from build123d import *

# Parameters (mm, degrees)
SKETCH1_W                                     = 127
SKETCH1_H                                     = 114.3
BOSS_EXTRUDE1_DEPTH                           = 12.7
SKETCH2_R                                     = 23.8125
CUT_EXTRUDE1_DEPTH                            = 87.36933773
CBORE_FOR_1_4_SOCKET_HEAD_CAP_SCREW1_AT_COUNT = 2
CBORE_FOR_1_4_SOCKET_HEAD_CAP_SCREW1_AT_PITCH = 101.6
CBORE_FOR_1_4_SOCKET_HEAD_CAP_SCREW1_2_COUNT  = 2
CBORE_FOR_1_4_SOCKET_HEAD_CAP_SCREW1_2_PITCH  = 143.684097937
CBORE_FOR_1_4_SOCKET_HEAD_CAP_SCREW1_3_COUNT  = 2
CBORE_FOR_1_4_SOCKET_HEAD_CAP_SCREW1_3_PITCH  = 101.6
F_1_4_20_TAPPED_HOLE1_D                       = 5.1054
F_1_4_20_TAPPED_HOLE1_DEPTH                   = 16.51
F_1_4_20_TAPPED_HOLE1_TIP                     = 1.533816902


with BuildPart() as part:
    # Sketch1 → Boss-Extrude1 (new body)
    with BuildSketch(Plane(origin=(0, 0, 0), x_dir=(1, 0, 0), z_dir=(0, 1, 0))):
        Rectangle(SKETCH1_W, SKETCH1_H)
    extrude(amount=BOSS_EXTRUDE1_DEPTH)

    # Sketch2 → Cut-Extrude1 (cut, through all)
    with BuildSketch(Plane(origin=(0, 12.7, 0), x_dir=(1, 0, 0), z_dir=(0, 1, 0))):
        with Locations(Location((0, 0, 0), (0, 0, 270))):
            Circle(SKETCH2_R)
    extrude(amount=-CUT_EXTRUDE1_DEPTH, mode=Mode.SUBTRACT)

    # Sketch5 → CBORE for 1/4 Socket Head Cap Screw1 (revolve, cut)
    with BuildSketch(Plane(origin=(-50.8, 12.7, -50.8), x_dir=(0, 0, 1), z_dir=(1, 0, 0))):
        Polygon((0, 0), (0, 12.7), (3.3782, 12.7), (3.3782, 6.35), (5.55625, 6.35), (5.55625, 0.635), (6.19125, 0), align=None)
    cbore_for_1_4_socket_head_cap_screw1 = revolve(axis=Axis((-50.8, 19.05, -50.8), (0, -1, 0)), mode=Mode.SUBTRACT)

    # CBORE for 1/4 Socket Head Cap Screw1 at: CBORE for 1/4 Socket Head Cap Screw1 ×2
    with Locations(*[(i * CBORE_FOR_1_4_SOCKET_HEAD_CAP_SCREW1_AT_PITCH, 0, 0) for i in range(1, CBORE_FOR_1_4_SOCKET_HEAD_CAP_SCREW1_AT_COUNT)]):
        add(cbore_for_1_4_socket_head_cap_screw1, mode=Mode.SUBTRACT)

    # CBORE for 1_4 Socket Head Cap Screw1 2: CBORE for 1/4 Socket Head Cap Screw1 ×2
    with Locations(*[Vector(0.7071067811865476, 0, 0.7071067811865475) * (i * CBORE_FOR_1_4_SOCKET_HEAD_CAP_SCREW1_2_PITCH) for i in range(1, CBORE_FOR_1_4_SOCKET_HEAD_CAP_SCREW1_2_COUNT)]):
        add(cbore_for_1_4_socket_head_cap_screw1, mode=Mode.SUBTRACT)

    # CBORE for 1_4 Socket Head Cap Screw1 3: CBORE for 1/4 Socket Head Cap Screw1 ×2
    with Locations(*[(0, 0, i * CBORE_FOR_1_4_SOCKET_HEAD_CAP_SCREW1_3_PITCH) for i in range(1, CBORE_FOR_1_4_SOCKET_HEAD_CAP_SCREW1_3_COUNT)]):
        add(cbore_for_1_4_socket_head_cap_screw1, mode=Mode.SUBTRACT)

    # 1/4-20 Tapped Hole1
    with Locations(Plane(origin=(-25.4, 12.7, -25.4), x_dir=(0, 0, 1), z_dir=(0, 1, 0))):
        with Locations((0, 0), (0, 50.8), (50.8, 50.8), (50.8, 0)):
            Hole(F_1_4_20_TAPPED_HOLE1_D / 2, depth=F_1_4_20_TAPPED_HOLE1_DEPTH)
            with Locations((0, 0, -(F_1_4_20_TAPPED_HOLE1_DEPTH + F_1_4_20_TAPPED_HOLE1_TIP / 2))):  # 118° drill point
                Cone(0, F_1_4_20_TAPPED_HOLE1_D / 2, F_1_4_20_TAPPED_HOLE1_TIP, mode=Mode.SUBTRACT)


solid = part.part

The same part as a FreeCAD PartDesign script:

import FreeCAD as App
import Part
import Sketcher
from FreeCAD import Vector
Q = App.Units.Quantity

doc = App.newDocument("Part")
body = doc.addObject("PartDesign::Body", "Body")

sketch1 = body.newObject("Sketcher::SketchObject", "Sketch")
sketch1.AttachmentSupport = (doc.getObject("XZ_Plane"), [""])
sketch1.MapMode = "FlatFace"
sketch1.addGeometry(Part.LineSegment(Vector(-63.5, -57.15, 0), Vector(-63.5, 57.15, 0)), False)
sketch1.addGeometry(Part.LineSegment(Vector(-63.5, 57.15, 0), Vector(63.5, 57.15, 0)), False)
sketch1.addGeometry(Part.LineSegment(Vector(63.5, 57.15, 0), Vector(63.5, -57.15, 0)), False)
sketch1.addGeometry(Part.LineSegment(Vector(63.5, -57.15, 0), Vector(-63.5, -57.15, 0)), False)
sketch1.addConstraint(Sketcher.Constraint("Coincident", 0, 2, 1, 1))
sketch1.addConstraint(Sketcher.Constraint("Coincident", 1, 2, 2, 1))
sketch1.addConstraint(Sketcher.Constraint("Coincident", 2, 2, 3, 1))
sketch1.addConstraint(Sketcher.Constraint("Coincident", 3, 2, 0, 1))
sketch1.addConstraint(Sketcher.Constraint("Vertical", 0))
sketch1.addConstraint(Sketcher.Constraint("Horizontal", 1))
sketch1.addConstraint(Sketcher.Constraint("Vertical", 2))
sketch1.addConstraint(Sketcher.Constraint("Horizontal", 3))
sketch1.addConstraint(Sketcher.Constraint("Symmetric", 0, 2, 2, 2, -1, 1))
sketch1.addConstraint(Sketcher.Constraint("DistanceX", 1, 1, 1, 2, Q("5 in")))
sketch1.addConstraint(Sketcher.Constraint("DistanceY", 0, 1, 0, 2, Q("4.5 in")))
pad1 = body.newObject("PartDesign::Pad", "Pad")
pad1.Profile = sketch1
pad1.Length = Q("0.5 in")
pad1.Reversed = True

sketch2 = body.newObject("Sketcher::SketchObject", "Sketch001")
sketch2.AttachmentSupport = (doc.getObject("XZ_Plane"), [""])
sketch2.MapMode = "FlatFace"
sketch2.AttachmentOffset = App.Placement(Vector(0, 0, -0.5 * 25.4), App.Rotation())
sketch2.addGeometry(Part.Circle(Vector(0, 0, 0), Vector(0, 0, 1), 23.8125), False)
sketch2.addConstraint(Sketcher.Constraint("Coincident", 0, 3, -1, 1))
sketch2.addConstraint(Sketcher.Constraint("Diameter", 0, Q("1.875 in")))
pocket1 = body.newObject("PartDesign::Pocket", "Pocket")
pocket1.Profile = sketch2
pocket1.Type = "ThroughAll"
pocket1.Reversed = True

sketch3 = body.newObject("Sketcher::SketchObject", "Sketch002")
sketch3.AttachmentSupport = (doc.getObject("YZ_Plane"), [""])
sketch3.MapMode = "FlatFace"
sketch3.AttachmentOffset = App.Placement(Vector(0, 0, -2 * 25.4), App.Rotation())
sketch3.addGeometry(Part.LineSegment(Vector(0, -50.8, 0), Vector(12.7, -50.8, 0)), False)
sketch3.addGeometry(Part.LineSegment(Vector(12.7, -50.8, 0), Vector(12.7, -44.60875, 0)), False)
sketch3.addGeometry(Part.LineSegment(Vector(12.7, -44.60875, 0), Vector(12.065, -45.24375, 0)), False)
sketch3.addGeometry(Part.LineSegment(Vector(12.065, -45.24375, 0), Vector(6.35, -45.24375, 0)), False)
sketch3.addGeometry(Part.LineSegment(Vector(6.35, -45.24375, 0), Vector(6.35, -47.4218, 0)), False)
sketch3.addGeometry(Part.LineSegment(Vector(6.35, -47.4218, 0), Vector(0, -47.4218, 0)), False)
sketch3.addGeometry(Part.LineSegment(Vector(0, -47.4218, 0), Vector(0, -50.8, 0)), False)
sketch3.addGeometry(Part.LineSegment(Vector(12.7, -50.8, 0), Vector(0, -50.8, 0)), True)
sketch3.addConstraint(Sketcher.Constraint("Coincident", 0, 2, 1, 1))
sketch3.addConstraint(Sketcher.Constraint("Coincident", 1, 2, 2, 1))
sketch3.addConstraint(Sketcher.Constraint("Coincident", 2, 2, 3, 1))
sketch3.addConstraint(Sketcher.Constraint("Coincident", 3, 2, 4, 1))
sketch3.addConstraint(Sketcher.Constraint("Coincident", 4, 2, 5, 1))
sketch3.addConstraint(Sketcher.Constraint("Coincident", 5, 2, 6, 1))
sketch3.addConstraint(Sketcher.Constraint("Coincident", 6, 2, 0, 1))
sketch3.addConstraint(Sketcher.Constraint("Horizontal", 0))
sketch3.addConstraint(Sketcher.Constraint("Vertical", 1))
sketch3.addConstraint(Sketcher.Constraint("Horizontal", 3))
sketch3.addConstraint(Sketcher.Constraint("Vertical", 4))
sketch3.addConstraint(Sketcher.Constraint("Horizontal", 5))
sketch3.addConstraint(Sketcher.Constraint("Vertical", 6))
sketch3.addConstraint(Sketcher.Constraint("Horizontal", 7))
sketch3.addConstraint(Sketcher.Constraint("Coincident", 7, 1, 0, 2))
sketch3.addConstraint(Sketcher.Constraint("PointOnObject", 5, 2, -2))
sketch3.addConstraint(Sketcher.Constraint("PointOnObject", 7, 2, -2))
sketch3.addConstraint(Sketcher.Constraint("DistanceX", 0, 1, 0, 2, Q("0.5 in")))
sketch3.addConstraint(Sketcher.Constraint("DistanceY", 0, 2, -1, 1, Q("2 in")))
sketch3.addConstraint(Sketcher.Constraint("Angle", 2, Q("-135 deg")))
sketch3.addConstraint(Sketcher.Constraint("DistanceX", 5, 2, 5, 1, Q("0.25 in")))
sketch3.addConstraint(Sketcher.Constraint("DistanceX", 3, 2, 3, 1, Q("0.225 in")))
sketch3.addConstraint(Sketcher.Constraint("DistanceY", 6, 2, 6, 1, Q("0.133 in")))
sketch3.addConstraint(Sketcher.Constraint("DistanceY", 2, 2, -1, 1, Q("1.78125 in")))
groove = body.newObject("PartDesign::Groove", "Groove")
groove.Profile = sketch3
groove.ReferenceAxis = (sketch3, ["Axis0"])
groove.Angle = 360
doc.recompute()

linearpattern = body.newObject("PartDesign::LinearPattern", "LinearPattern")
linearpattern.Originals = [groove]
linearpattern.Direction = (doc.getObject("X_Axis"), [""])
linearpattern.Mode = "offset"
linearpattern.Offset = Q("4 in")
linearpattern.Occurrences = 2
body.Tip = linearpattern
doc.recompute()

datumline = body.newObject("PartDesign::Line", "DatumLine")
datumline.Placement = App.Placement(Vector(0, 0, 0), App.Rotation(Vector(0, 0, 1), Vector(0.707106781, 0, 0.707106781)))
linearpattern2 = body.newObject("PartDesign::LinearPattern", "LinearPattern001")
linearpattern2.Originals = [groove]
linearpattern2.Direction = (datumline, [""])
linearpattern2.Mode = "offset"
linearpattern2.Offset = 143.684098
linearpattern2.Occurrences = 2
body.Tip = linearpattern2
doc.recompute()

linearpattern3 = body.newObject("PartDesign::LinearPattern", "LinearPattern002")
linearpattern3.Originals = [groove]
linearpattern3.Direction = (doc.getObject("Z_Axis"), [""])
linearpattern3.Mode = "offset"
linearpattern3.Offset = Q("4 in")
linearpattern3.Occurrences = 2
body.Tip = linearpattern3

sketch4 = body.newObject("Sketcher::SketchObject", "Sketch003")
sketch4.AttachmentSupport = (doc.getObject("XZ_Plane"), [""])
sketch4.MapMode = "FlatFace"
sketch4.AttachmentOffset = App.Placement(Vector(0, 0, -0.5 * 25.4), App.Rotation())
sketch4.addGeometry(Part.Circle(Vector(-25.4, -25.4, 0), Vector(0, 0, 1), 2.5527), False)
sketch4.addGeometry(Part.Circle(Vector(25.4, -25.4, 0), Vector(0, 0, 1), 2.5527), False)
sketch4.addGeometry(Part.Circle(Vector(25.4, 25.4, 0), Vector(0, 0, 1), 2.5527), False)
sketch4.addGeometry(Part.Circle(Vector(-25.4, 25.4, 0), Vector(0, 0, 1), 2.5527), False)
sketch4.addConstraint(Sketcher.Constraint("Equal", 0, 1))
sketch4.addConstraint(Sketcher.Constraint("Equal", 1, 2))
sketch4.addConstraint(Sketcher.Constraint("Equal", 2, 3))
sketch4.addConstraint(Sketcher.Constraint("Symmetric", 0, 3, 2, 3, -1, 1))
sketch4.addConstraint(Sketcher.Constraint("Symmetric", 1, 3, 3, 3, -1, 1))
sketch4.addConstraint(Sketcher.Constraint("Symmetric", 0, 3, 1, 3, -2))
sketch4.addConstraint(Sketcher.Constraint("Diameter", 0, Q("0.201 in")))
sketch4.addConstraint(Sketcher.Constraint("DistanceX", 0, 3, -1, 1, Q("1 in")))
sketch4.addConstraint(Sketcher.Constraint("DistanceY", 0, 3, -1, 1, Q("1 in")))
doc.recompute()
hole = body.newObject("PartDesign::Hole", "Hole")
hole.Profile = sketch4
hole.ThreadType = "None"
hole.Diameter = Q("0.201 in")
hole.DepthType = "Dimension"
hole.Depth = Q("0.65 in")
hole.DrillPoint = "Angled"
hole.DrillPointAngle = 118
hole.Reversed = True

doc.recompute()
